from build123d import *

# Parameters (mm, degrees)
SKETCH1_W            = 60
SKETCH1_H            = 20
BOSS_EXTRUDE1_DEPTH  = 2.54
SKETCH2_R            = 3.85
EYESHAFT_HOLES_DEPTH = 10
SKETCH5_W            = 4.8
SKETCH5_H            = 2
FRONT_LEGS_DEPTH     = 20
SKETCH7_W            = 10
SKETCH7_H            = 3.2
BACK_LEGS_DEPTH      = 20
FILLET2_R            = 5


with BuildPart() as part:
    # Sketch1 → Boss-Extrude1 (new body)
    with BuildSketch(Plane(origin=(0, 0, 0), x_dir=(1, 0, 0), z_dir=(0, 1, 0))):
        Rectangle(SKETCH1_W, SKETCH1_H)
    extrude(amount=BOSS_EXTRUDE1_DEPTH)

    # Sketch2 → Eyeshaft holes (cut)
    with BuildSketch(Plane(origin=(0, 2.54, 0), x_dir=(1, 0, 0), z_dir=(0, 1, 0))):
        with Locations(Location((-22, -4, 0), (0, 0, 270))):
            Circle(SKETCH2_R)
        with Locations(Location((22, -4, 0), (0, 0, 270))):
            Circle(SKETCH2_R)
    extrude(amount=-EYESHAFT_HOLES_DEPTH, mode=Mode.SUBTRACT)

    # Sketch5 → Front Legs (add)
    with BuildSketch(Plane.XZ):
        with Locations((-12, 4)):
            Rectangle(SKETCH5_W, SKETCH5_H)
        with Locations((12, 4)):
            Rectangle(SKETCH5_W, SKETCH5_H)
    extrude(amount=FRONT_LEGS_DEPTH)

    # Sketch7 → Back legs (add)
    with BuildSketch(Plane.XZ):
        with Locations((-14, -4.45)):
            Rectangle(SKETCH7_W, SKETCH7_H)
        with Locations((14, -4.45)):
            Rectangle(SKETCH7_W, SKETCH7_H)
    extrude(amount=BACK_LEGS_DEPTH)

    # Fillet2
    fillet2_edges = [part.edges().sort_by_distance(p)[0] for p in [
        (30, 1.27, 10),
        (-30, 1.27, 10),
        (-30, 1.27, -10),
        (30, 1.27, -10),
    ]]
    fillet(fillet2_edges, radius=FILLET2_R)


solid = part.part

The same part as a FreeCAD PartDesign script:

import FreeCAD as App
import Part
import Sketcher


def edges_at(feature, points):
    """Names of the edges that pass closest to the given points."""
    edges = feature.Shape.Edges
    near = lambda p: min(range(len(edges)), key=lambda i: edges[i].distToShape(Part.Vertex(*p))[0])
    return sorted({f"Edge{near(p) + 1}" for p in points})


def add_polygon(sketch, points):
    """Adds a closed chain of lines whose ends are joined by coincident constraints."""
    first, n = sketch.GeometryCount, len(points)
    for a, b in zip(points, points[1:] + points[:1]):
        sketch.addGeometry(Part.LineSegment(App.Vector(*a, 0), App.Vector(*b, 0)), False)
    for i in range(n):
        sketch.addConstraint(Sketcher.Constraint("Coincident", first + i, 2, first + (i + 1) % n, 1))

doc = App.newDocument("Part")
params = doc.addObject("Spreadsheet::Sheet", "Params")
for row, (alias, value) in enumerate([
    ("sketch1_width", "60 mm"),
    ("sketch1_height", "20 mm"),
    ("pad1_length", "2.54 mm"),
    ("sketch2_diameter", "7.7 mm"),
    ("pocket1_length", "10 mm"),
    ("sketch3_height", "2 mm"),
    ("sketch3_width", "4.8 mm"),
    ("pad2_length", "20 mm"),
    ("sketch4_width", "10 mm"),
    ("sketch4_height", "3.2 mm"),
    ("pad3_length", "20 mm"),
    ("fillet_radius", "5 mm"),
], start=1):
    params.set(f"A{row}", alias)
    params.set(f"B{row}", "=" + value)
    params.setAlias(f"B{row}", alias)

body = doc.addObject("PartDesign::Body", "Body")

sketch1 = body.newObject("Sketcher::SketchObject", "Sketch")
sketch1.AttachmentSupport = (doc.getObject("XZ_Plane"), [""])
sketch1.MapMode = "FlatFace"
add_polygon(sketch1, [(-30, -10), (-30, 10), (30, 10), (30, -10)])
sketch1.addConstraint([
    Sketcher.Constraint("Vertical", 0),
    Sketcher.Constraint("Horizontal", 1),
    Sketcher.Constraint("Vertical", 2),
    Sketcher.Constraint("Horizontal", 3),
    Sketcher.Constraint("Symmetric", 0, 2, 2, 2, -1, 1),
    Sketcher.Constraint("DistanceX", 1, 1, 1, 2, 60.0),
    Sketcher.Constraint("DistanceY", 0, 1, 0, 2, 20.0),
])
sketch1.setExpression("Constraints[9]", "Params.sketch1_width")
sketch1.setExpression("Constraints[10]", "Params.sketch1_height")
pad1 = body.newObject("PartDesign::Pad", "Pad")
pad1.Profile = sketch1
pad1.setExpression("Length", "Params.pad1_length")
pad1.Reversed = True

sketch2 = body.newObject("Sketcher::SketchObject", "Sketch001")
sketch2.AttachmentSupport = (doc.getObject("XZ_Plane"), [""])
sketch2.MapMode = "FlatFace"
sketch2.AttachmentOffset = App.Placement(App.Vector(0, 0, -2.54), App.Rotation())
sketch2.addGeometry([
    Part.Circle(App.Vector(-22, 4, 0), App.Vector(0, 0, 1), 3.85),
    Part.Circle(App.Vector(22, 4, 0), App.Vector(0, 0, 1), 3.85),
], False)
sketch2.addConstraint([
    Sketcher.Constraint("Equal", 0, 1),
    Sketcher.Constraint("Symmetric", 0, 3, 1, 3, -2),
    Sketcher.Constraint("Diameter", 0, 7.7),
    Sketcher.Constraint("DistanceX", 0, 3, -1, 1, 22.0),
    Sketcher.Constraint("DistanceY", -1, 1, 0, 3, 4.0),
])
sketch2.setExpression("Constraints[2]", "Params.sketch2_diameter")
pocket1 = body.newObject("PartDesign::Pocket", "Pocket")
pocket1.Profile = sketch2
pocket1.setExpression("Length", "Params.pocket1_length")
pocket1.Reversed = True

sketch3 = body.newObject("Sketcher::SketchObject", "Sketch002")
sketch3.AttachmentSupport = (doc.getObject("XZ_Plane"), [""])
sketch3.MapMode = "FlatFace"
add_polygon(sketch3, [(-14.4, 5), (-14.4, 3), (-9.6, 3), (-9.6, 5)])
add_polygon(sketch3, [(9.6, 5), (9.6, 3), (14.4, 3), (14.4, 5)])
sketch3.addConstraint([
    Sketcher.Constraint("Vertical", 0),
    Sketcher.Constraint("Horizontal", 1),
    Sketcher.Constraint("Vertical", 2),
    Sketcher.Constraint("Horizontal", 3),
    Sketcher.Constraint("Vertical", 4),
    Sketcher.Constraint("Horizontal", 5),
    Sketcher.Constraint("Vertical", 6),
    Sketcher.Constraint("Horizontal", 7),
    Sketcher.Constraint("Symmetric", 1, 2, 4, 2, -2),
    Sketcher.Constraint("Symmetric", 3, 2, 6, 2, -2),
    Sketcher.Constraint("DistanceY", 0, 2, 0, 1, 2.0),
    Sketcher.Constraint("DistanceX", 1, 1, 1, 2, 4.8),
    Sketcher.Constraint("DistanceY", -1, 1, 0, 2, 3.0),
    Sketcher.Constraint("DistanceX", 0, 2, 4, 2, 24.0),
])
sketch3.setExpression("Constraints[18]", "Params.sketch3_height")
sketch3.setExpression("Constraints[19]", "Params.sketch3_width")
pad2 = body.newObject("PartDesign::Pad", "Pad001")
pad2.Profile = sketch3
pad2.setExpression("Length", "Params.pad2_length")

sketch4 = body.newObject("Sketcher::SketchObject", "Sketch003")
sketch4.AttachmentSupport = (doc.getObject("XZ_Plane"), [""])
sketch4.MapMode = "FlatFace"
add_polygon(sketch4, [(-19, -2.85), (-19, -6.05), (-9, -6.05), (-9, -2.85)])
add_polygon(sketch4, [(9, -2.85), (9, -6.05), (19, -6.05), (19, -2.85)])
sketch4.addConstraint([
    Sketcher.Constraint("Vertical", 0),
    Sketcher.Constraint("Horizontal", 1),
    Sketcher.Constraint("Vertical", 2),
    Sketcher.Constraint("Horizontal", 3),
    Sketcher.Constraint("Vertical", 4),
    Sketcher.Constraint("Horizontal", 5),
    Sketcher.Constraint("Vertical", 6),
    Sketcher.Constraint("Horizontal", 7),
    Sketcher.Constraint("Symmetric", 1, 2, 4, 2, -2),
    Sketcher.Constraint("Symmetric", 3, 2, 6, 2, -2),
    Sketcher.Constraint("DistanceX", 1, 1, 1, 2, 10.0),
    Sketcher.Constraint("DistanceY", 0, 2, 0, 1, 3.2),
    Sketcher.Constraint("DistanceX", 0, 2, -1, 1, 19.0),
    Sketcher.Constraint("DistanceY", 0, 2, -1, 1, 6.05),
])
sketch4.setExpression("Constraints[18]", "Params.sketch4_width")
sketch4.setExpression("Constraints[19]", "Params.sketch4_height")
pad3 = body.newObject("PartDesign::Pad", "Pad002")
pad3.Profile = sketch4
pad3.setExpression("Length", "Params.pad3_length")
doc.recompute()

fillet = body.newObject("PartDesign::Fillet", "Fillet")
fillet.Base = (pad3, edges_at(pad3, [
    (30, 1.27, 10),
    (-30, 1.27, 10),
    (-30, 1.27, -10),
    (30, 1.27, -10),
]))
fillet.setExpression("Radius", "Params.fillet_radius")

doc.recompute()
